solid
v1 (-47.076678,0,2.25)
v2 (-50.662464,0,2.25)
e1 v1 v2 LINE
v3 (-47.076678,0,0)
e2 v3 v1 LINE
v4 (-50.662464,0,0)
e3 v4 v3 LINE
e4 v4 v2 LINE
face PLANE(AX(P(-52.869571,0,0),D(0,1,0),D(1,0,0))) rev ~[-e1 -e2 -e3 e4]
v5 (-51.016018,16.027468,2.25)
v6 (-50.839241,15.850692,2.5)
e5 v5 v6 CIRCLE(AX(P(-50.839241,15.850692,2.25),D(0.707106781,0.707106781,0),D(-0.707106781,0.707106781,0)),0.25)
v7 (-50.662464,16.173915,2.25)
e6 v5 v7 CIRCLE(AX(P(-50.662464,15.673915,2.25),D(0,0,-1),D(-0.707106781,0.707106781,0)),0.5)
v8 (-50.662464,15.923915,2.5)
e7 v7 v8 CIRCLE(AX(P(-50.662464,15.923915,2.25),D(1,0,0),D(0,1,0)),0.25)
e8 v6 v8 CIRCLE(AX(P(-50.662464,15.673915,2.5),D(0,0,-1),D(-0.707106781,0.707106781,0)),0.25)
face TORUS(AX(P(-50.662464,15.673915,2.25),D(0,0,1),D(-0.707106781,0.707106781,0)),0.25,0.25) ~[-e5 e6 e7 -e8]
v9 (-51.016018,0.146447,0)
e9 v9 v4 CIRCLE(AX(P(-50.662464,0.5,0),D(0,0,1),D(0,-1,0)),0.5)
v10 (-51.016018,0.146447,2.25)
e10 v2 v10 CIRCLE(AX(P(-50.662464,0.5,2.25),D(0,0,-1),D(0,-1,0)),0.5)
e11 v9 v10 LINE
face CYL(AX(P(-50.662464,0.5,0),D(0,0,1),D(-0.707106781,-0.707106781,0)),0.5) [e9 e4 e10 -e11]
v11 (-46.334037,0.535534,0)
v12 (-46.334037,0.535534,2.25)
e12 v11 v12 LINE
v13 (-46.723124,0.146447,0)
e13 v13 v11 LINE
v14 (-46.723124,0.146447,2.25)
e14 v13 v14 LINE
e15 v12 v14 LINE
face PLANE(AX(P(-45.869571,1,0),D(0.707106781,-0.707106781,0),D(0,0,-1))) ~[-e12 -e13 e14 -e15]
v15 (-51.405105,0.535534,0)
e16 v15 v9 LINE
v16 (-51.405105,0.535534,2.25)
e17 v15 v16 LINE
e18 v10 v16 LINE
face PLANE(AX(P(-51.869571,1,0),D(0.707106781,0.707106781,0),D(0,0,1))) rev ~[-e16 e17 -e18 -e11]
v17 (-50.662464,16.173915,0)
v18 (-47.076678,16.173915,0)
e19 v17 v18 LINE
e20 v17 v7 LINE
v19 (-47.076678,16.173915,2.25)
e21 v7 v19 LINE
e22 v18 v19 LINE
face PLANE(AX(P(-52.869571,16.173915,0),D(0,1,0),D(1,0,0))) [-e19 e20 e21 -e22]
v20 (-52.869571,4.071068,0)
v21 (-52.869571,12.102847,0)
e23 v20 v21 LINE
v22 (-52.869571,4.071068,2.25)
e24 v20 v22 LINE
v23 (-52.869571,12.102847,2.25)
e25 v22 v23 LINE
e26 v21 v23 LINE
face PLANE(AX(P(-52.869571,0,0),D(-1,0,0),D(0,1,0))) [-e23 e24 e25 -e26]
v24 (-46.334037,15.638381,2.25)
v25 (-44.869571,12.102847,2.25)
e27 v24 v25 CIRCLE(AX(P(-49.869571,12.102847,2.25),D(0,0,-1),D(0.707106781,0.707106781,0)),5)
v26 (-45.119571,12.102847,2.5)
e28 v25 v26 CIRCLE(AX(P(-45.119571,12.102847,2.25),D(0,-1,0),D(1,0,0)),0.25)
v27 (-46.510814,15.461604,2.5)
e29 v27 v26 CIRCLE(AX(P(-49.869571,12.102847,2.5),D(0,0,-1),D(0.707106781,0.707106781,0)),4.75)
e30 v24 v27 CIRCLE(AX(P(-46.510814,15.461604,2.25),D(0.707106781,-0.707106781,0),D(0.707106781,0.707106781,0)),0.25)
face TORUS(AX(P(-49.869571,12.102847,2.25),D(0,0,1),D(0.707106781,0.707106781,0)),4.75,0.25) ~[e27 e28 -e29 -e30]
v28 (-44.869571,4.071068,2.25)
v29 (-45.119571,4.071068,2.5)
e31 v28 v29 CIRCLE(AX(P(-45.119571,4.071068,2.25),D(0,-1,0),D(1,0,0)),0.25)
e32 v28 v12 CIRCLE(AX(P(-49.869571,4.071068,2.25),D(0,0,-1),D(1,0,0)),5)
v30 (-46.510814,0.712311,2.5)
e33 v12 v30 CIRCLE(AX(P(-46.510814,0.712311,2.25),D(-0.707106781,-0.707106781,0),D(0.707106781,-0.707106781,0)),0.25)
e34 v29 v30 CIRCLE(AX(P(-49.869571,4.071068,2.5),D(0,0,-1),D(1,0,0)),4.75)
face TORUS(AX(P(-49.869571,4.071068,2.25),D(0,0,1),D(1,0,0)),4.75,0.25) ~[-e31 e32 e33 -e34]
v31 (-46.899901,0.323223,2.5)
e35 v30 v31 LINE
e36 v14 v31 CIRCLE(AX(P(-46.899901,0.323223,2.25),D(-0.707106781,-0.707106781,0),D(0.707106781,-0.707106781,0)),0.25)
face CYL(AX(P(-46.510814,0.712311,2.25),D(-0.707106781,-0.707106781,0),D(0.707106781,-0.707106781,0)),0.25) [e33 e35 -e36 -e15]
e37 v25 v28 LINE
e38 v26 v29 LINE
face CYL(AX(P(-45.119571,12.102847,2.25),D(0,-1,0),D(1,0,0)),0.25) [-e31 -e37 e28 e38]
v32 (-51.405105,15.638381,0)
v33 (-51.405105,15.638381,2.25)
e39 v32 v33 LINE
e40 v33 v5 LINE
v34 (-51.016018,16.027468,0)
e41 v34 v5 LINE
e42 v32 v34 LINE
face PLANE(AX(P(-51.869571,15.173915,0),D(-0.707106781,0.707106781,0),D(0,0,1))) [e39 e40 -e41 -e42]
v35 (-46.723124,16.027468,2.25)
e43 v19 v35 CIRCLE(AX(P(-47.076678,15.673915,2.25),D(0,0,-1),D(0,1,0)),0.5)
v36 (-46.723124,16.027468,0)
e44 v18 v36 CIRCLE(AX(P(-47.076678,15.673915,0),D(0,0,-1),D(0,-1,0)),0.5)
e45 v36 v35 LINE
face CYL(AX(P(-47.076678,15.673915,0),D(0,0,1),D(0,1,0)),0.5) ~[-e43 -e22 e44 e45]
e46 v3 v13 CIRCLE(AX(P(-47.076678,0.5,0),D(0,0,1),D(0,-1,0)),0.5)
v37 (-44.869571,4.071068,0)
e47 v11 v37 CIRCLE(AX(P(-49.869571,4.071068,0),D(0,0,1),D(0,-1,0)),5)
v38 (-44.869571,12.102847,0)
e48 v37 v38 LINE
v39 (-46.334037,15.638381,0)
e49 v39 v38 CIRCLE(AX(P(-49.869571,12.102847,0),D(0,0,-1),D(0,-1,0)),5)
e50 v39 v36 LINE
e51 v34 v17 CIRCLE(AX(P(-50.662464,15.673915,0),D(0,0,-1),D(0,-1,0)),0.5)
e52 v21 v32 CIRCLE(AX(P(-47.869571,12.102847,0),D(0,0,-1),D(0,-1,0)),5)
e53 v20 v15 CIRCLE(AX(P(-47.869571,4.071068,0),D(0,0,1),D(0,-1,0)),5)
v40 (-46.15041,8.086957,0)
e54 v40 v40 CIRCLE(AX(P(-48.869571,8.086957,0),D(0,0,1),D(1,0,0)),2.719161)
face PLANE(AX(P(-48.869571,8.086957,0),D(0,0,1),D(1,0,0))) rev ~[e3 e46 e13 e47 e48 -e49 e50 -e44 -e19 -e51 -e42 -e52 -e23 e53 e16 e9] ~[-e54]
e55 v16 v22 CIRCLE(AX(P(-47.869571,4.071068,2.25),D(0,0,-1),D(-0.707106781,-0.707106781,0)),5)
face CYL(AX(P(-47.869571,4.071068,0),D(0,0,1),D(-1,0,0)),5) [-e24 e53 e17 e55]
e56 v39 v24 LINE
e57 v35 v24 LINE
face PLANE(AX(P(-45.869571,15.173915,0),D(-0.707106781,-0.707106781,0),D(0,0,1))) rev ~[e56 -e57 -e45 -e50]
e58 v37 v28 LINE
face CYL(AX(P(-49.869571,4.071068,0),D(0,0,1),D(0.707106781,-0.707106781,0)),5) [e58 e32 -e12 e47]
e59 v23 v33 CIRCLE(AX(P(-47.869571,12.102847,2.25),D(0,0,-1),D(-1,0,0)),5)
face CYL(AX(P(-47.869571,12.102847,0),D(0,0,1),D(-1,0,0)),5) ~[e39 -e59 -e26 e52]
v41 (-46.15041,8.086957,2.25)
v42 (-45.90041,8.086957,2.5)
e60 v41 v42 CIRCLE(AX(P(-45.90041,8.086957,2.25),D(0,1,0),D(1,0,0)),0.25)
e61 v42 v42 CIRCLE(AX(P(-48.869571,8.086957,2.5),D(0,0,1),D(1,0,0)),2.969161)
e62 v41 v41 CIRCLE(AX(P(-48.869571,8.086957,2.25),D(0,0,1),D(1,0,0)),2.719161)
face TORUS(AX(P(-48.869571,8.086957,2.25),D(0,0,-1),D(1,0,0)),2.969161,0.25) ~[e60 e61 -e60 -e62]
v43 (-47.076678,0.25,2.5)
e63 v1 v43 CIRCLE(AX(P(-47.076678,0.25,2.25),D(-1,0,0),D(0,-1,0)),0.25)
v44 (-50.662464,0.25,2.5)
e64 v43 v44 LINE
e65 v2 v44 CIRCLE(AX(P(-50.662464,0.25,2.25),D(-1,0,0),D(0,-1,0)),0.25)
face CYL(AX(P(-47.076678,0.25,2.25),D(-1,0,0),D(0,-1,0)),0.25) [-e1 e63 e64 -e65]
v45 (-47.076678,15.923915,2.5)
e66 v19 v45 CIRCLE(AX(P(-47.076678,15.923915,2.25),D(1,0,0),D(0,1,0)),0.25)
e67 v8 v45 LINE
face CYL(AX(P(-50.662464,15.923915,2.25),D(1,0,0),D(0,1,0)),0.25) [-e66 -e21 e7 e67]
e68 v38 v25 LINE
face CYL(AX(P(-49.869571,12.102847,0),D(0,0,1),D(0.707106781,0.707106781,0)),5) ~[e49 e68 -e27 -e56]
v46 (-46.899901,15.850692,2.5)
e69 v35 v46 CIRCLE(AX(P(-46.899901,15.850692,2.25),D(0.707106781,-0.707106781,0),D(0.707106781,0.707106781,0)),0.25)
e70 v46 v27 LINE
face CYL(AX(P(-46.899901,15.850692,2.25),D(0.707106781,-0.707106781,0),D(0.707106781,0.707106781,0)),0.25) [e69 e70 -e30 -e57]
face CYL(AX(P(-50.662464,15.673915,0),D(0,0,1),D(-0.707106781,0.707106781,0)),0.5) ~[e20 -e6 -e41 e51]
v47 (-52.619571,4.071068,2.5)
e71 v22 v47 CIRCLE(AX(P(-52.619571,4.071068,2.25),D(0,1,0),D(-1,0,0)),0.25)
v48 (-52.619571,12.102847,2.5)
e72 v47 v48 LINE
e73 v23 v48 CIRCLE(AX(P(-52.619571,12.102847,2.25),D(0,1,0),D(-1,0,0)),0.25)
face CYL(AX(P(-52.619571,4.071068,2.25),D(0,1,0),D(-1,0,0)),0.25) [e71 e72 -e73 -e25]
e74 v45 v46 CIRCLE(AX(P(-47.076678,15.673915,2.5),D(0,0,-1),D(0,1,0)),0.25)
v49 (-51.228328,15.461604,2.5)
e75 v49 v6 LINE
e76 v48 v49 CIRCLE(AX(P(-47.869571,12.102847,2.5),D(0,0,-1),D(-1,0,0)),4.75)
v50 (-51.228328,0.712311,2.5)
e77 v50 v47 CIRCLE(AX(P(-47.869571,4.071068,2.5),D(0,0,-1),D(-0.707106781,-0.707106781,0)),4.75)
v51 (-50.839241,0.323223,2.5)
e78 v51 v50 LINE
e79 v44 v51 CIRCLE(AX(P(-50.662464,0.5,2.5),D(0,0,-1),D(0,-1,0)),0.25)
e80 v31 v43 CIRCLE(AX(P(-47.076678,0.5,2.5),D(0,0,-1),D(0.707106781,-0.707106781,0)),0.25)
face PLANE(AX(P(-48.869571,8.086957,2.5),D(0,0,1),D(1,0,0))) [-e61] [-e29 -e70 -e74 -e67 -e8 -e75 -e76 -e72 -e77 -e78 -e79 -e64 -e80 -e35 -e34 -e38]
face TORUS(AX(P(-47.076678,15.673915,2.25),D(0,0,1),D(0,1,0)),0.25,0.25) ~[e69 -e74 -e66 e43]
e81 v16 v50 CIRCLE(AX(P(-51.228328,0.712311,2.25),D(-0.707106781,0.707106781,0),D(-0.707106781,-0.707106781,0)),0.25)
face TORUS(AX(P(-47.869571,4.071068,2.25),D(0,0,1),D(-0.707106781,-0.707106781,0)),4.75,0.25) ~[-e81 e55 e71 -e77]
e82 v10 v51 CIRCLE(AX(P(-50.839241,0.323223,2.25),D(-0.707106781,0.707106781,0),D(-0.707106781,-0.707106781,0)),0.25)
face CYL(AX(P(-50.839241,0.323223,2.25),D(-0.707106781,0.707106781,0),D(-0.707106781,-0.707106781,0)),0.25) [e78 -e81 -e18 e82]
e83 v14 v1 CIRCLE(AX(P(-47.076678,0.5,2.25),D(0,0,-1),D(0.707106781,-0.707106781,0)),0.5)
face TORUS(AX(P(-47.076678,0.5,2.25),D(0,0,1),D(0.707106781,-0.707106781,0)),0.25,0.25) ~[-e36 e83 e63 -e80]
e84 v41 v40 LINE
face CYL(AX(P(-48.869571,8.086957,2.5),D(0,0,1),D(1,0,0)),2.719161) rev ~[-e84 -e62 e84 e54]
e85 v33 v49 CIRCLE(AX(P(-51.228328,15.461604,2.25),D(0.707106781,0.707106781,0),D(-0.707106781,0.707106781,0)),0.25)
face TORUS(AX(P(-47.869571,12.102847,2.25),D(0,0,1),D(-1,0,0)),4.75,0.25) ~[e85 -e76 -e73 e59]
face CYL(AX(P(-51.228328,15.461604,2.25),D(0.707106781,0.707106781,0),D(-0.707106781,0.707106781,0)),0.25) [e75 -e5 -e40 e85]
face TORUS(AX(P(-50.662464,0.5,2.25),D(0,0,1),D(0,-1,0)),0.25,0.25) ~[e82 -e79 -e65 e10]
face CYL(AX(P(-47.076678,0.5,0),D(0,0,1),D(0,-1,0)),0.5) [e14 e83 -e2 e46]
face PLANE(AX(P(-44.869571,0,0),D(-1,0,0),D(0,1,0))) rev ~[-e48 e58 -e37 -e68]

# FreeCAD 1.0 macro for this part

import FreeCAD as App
import Part
import Sketcher

V = App.Vector


def edges_at(feature, points):
    """Names of the edges that pass closest to the given points."""
    edges = feature.Shape.Edges
    near = lambda p: min(range(len(edges)), key=lambda i: edges[i].distToShape(Part.Vertex(*p))[0])
    return sorted({f"Edge{near(p) + 1}" for p in points})


def add_polygon(sketch, points):
    """Adds a closed chain of lines whose ends are joined by coincident constraints."""
    first, n = sketch.GeometryCount, len(points)
    for a, b in zip(points, points[1:] + points[:1]):
        sketch.addGeometry(Part.LineSegment(App.Vector(*a, 0), App.Vector(*b, 0)), False)
    for i in range(n):
        sketch.addConstraint(Sketcher.Constraint("Coincident", first + i, 2, first + (i + 1) % n, 1))

doc = App.newDocument("Part")
body = doc.addObject("PartDesign::Body", "Body")

# Sketch on XY plane
sketch1 = body.newObject("Sketcher::SketchObject", "Sketch")
sketch1.AttachmentSupport = (doc.getObject("XY_Plane"), [""])
sketch1.MapMode = "FlatFace"
add_polygon(sketch1, [(-53, 16), (-53, 0), (-45, 0), (-45, 16)])  # lines 0-3
sketch1.addConstraint(Sketcher.Constraint("Vertical", 0))
sketch1.addConstraint(Sketcher.Constraint("Horizontal", 1))
sketch1.addConstraint(Sketcher.Constraint("Vertical", 2))
sketch1.addConstraint(Sketcher.Constraint("Horizontal", 3))
sketch1.addConstraint(Sketcher.Constraint("PointOnObject", 0, 2, -1))
sketch1.addConstraint(Sketcher.Constraint("DistanceX", 1, 1, 1, 2, 8.0))
sketch1.addConstraint(Sketcher.Constraint("DistanceY", 0, 2, 0, 1, 16.173915))
sketch1.addConstraint(Sketcher.Constraint("DistanceX", 0, 2, -1, 1, 52.869571))
pad1 = body.newObject("PartDesign::Pad", "Pad")
pad1.Profile = sketch1
pad1.Length = 2.5
doc.recompute()

chamfer = body.newObject("PartDesign::Chamfer", "Chamfer")
chamfer.Base = (pad1, edges_at(pad1, [
    (-44.87, 0, 1.25),
    (-52.87, 0, 1.25),
    (-44.87, 16.174, 1.25),
    (-52.87, 16.174, 1.25),
]))
chamfer.Size = 2
doc.recompute()

fillet = body.newObject("PartDesign::Fillet", "Fillet")
fillet.Base = (chamfer, edges_at(chamfer, [
    (-52.87, 14.174, 1.25),
    (-52.87, 2, 1.25),
    (-44.87, 2, 1.25),
    (-44.87, 14.174, 1.25),
]))
fillet.Radius = 5
doc.recompute()

fillet2 = body.newObject("PartDesign::Fillet", "Fillet001")
fillet2.Base = (fillet, edges_at(fillet, [
    (-50.87, 16.174, 1.25),
    (-46.87, 16.174, 1.25),
    (-46.87, 0, 1.25),
    (-50.87, 0, 1.25),
]))
fillet2.Radius = 0.5

# Sketch on XY plane
sketch2 = body.newObject("Sketcher::SketchObject", "Sketch001")
sketch2.AttachmentSupport = (doc.getObject("XY_Plane"), [""])
sketch2.MapMode = "FlatFace"
sketch2.AttachmentOffset = App.Placement(V(0, 0, 2.5), App.Rotation())
sketch2.addGeometry(Part.Circle(V(-48.9, 8.1, 0), V(0, 0, 1), 2.7), False)
sketch2.addConstraint(Sketcher.Constraint("Diameter", 0, 5.438323))
sketch2.addConstraint(Sketcher.Constraint("DistanceX", 0, 3, -1, 1, 48.869571))
sketch2.addConstraint(Sketcher.Constraint("DistanceY", -1, 1, 0, 3, 8.086957))
pocket1 = body.newObject("PartDesign::Pocket", "Pocket")
pocket1.Profile = sketch2
pocket1.Length = 25
doc.recompute()

fillet3 = body.newObject("PartDesign::Fillet", "Fillet002")
fillet3.Base = (pocket1, edges_at(pocket1, [(-51.589, 8.087, 2.5), (-52.87, 8.087, 2.5)]))
fillet3.Radius = 0.25

doc.recompute()
